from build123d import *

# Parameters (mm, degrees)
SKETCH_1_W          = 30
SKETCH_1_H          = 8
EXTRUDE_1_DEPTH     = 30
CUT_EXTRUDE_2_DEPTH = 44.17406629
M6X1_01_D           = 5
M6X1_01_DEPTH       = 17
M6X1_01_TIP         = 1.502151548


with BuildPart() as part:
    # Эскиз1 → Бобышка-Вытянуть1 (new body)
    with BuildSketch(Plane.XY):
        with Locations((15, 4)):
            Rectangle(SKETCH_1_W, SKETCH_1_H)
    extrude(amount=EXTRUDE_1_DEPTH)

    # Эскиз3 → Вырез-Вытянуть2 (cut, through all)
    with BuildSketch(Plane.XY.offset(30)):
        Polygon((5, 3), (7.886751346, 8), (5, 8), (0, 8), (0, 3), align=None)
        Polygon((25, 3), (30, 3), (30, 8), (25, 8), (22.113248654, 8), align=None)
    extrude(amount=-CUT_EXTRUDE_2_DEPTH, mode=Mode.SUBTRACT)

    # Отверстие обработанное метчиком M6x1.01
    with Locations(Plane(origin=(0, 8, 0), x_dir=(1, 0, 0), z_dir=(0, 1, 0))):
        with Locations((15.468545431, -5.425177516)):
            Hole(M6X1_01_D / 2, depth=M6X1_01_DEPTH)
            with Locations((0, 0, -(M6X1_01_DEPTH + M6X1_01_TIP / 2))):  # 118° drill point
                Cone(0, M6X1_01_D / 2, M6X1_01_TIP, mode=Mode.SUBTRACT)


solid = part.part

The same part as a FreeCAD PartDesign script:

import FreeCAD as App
import Part
import Sketcher

V = App.Vector
Q = App.Units.Quantity


def add_polygon(sketch, points):
    """Adds a closed chain of lines whose ends are joined by coincident constraints."""
    first, n = sketch.GeometryCount, len(points)
    for a, b in zip(points, points[1:] + points[:1]):
        sketch.addGeometry(Part.LineSegment(App.Vector(*a, 0), App.Vector(*b, 0)), False)
    for i in range(n):
        sketch.addConstraint(Sketcher.Constraint("Coincident", first + i, 2, first + (i + 1) % n, 1))

doc = App.newDocument("Part")
body = doc.addObject("PartDesign::Body", "Body")

sketch1 = body.newObject("Sketcher::SketchObject", "Sketch")
sketch1.AttachmentSupport = (doc.getObject("XY_Plane"), [""])
sketch1.MapMode = "FlatFace"
add_polygon(sketch1, [(0, 8), (0, 0), (30, 0), (30, 8)])
sketch1.addConstraint(Sketcher.Constraint("Vertical", 0))
sketch1.addConstraint(Sketcher.Constraint("Horizontal", 1))
sketch1.addConstraint(Sketcher.Constraint("Vertical", 2))
sketch1.addConstraint(Sketcher.Constraint("Horizontal", 3))
sketch1.addConstraint(Sketcher.Constraint("Coincident", 0, 2, -1, 1))
sketch1.addConstraint(Sketcher.Constraint("DistanceX", 1, 1, 1, 2, 30.0))
sketch1.addConstraint(Sketcher.Constraint("DistanceY", 0, 2, 0, 1, 8.0))
pad1 = body.newObject("PartDesign::Pad", "Pad")
pad1.Profile = sketch1
pad1.Length = 30

sketch2 = body.newObject("Sketcher::SketchObject", "Sketch001")
sketch2.AttachmentSupport = (doc.getObject("XY_Plane"), [""])
sketch2.MapMode = "FlatFace"
sketch2.AttachmentOffset = App.Placement(V(0, 0, 30), App.Rotation())
add_polygon(sketch2, [(5, 3), (7.886751, 8), (0, 8), (0, 3)])
add_polygon(sketch2, [(25, 3), (30, 3), (30, 8), (22.113249, 8)])
sketch2.addConstraint(Sketcher.Constraint("Horizontal", 1))
sketch2.addConstraint(Sketcher.Constraint("Vertical", 2))
sketch2.addConstraint(Sketcher.Constraint("Horizontal", 3))
sketch2.addConstraint(Sketcher.Constraint("Horizontal", 4))
sketch2.addConstraint(Sketcher.Constraint("Vertical", 5))
sketch2.addConstraint(Sketcher.Constraint("Horizontal", 6))
sketch2.addConstraint(Sketcher.Constraint("PointOnObject", 1, 2, -2))
sketch2.addConstraint(Sketcher.Constraint("Horizontal", 3, 2, 4, 2))
sketch2.addConstraint(Sketcher.Constraint("Horizontal", 1, 2, 5, 2))
sketch2.addConstraint(Sketcher.Constraint("Equal", 3, 4))
sketch2.addConstraint(Sketcher.Constraint("Equal", 1, 6))
sketch2.addConstraint(Sketcher.Constraint("Equal", 4, 2))
sketch2.addConstraint(Sketcher.Constraint("DistanceX", 3, 1, 3, 2, 5.0))
sketch2.addConstraint(Sketcher.Constraint("Angle", 0, Q("60 deg")))
sketch2.addConstraint(Sketcher.Constraint("DistanceY", -1, 1, 0, 2, 8.0))
sketch2.addConstraint(Sketcher.Constraint("DistanceX", -1, 1, 4, 2, 30.0))
pocket1 = body.newObject("PartDesign::Pocket", "Pocket")
pocket1.Profile = sketch2
pocket1.Type = "ThroughAll"

sketch3 = body.newObject("Sketcher::SketchObject", "Sketch002")
sketch3.AttachmentSupport = (doc.getObject("XZ_Plane"), [""])
sketch3.MapMode = "FlatFace"
sketch3.AttachmentOffset = App.Placement(V(0, 0, -8), App.Rotation())
sketch3.addGeometry(Part.Circle(V(15.468545, 5.425178, 0), V(0, 0, 1), 2.5), False)
sketch3.addConstraint(Sketcher.Constraint("Diameter", 0, 5.0))
sketch3.addConstraint(Sketcher.Constraint("DistanceX", -1, 1, 0, 3, 15.468545))
sketch3.addConstraint(Sketcher.Constraint("DistanceY", -1, 1, 0, 3, 5.425178))
doc.recompute()
hole = body.newObject("PartDesign::Hole", "Hole")
hole.Profile = sketch3
hole.ThreadType = "None"
hole.Diameter = 5
hole.DepthType = "Dimension"
hole.Depth = 17
hole.DrillPoint = "Angled"
hole.DrillPointAngle = 118
hole.Reversed = True

doc.recompute()
